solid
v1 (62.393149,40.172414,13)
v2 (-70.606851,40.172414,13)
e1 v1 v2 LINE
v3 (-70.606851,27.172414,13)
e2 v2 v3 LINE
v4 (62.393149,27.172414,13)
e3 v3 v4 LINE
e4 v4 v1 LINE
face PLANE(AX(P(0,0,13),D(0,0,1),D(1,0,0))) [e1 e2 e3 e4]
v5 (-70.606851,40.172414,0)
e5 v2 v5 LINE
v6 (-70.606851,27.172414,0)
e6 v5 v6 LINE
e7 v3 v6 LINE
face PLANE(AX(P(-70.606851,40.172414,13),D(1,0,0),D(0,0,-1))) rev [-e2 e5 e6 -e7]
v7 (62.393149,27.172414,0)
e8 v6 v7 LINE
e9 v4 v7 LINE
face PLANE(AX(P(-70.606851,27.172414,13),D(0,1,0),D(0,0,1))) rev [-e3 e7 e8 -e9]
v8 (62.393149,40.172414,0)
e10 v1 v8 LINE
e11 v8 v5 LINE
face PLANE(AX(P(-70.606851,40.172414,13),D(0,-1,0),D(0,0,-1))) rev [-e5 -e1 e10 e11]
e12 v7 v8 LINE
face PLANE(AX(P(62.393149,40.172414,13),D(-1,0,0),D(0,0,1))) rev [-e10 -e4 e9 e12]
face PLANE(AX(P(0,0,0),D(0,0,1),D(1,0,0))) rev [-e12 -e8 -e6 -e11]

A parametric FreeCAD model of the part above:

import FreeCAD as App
import Part
import Sketcher
Q = App.Units.Quantity

doc = App.newDocument("Part")
body = doc.addObject("PartDesign::Body", "Body")

sketch1 = body.newObject("Sketcher::SketchObject", "Sketch")
sketch1.AttachmentSupport = (doc.getObject("XY_Plane"), [""])
sketch1.MapMode = "FlatFace"
sketch1.addGeometry([
    Part.LineSegment(App.Vector(-70.606851, 40.172414, 0), App.Vector(-70.606851, 27.172414, 0)),
    Part.LineSegment(App.Vector(-70.606851, 27.172414, 0), App.Vector(62.393149, 27.172414, 0)),
    Part.LineSegment(App.Vector(62.393149, 27.172414, 0), App.Vector(62.393149, 40.172414, 0)),
    Part.LineSegment(App.Vector(62.393149, 40.172414, 0), App.Vector(-70.606851, 40.172414, 0)),
], False)
sketch1.addConstraint([
    Sketcher.Constraint("Coincident", 0, 2, 1, 1),
    Sketcher.Constraint("Coincident", 1, 2, 2, 1),
    Sketcher.Constraint("Coincident", 2, 2, 3, 1),
    Sketcher.Constraint("Coincident", 3, 2, 0, 1),
    Sketcher.Constraint("Vertical", 0),
    Sketcher.Constraint("Horizontal", 1),
    Sketcher.Constraint("Vertical", 2),
    Sketcher.Constraint("Horizontal", 3),
    Sketcher.Constraint("DistanceX", 1, 1, 1, 2, Q("133 mm")),
    Sketcher.Constraint("DistanceY", 0, 2, 0, 1, Q("13 mm")),
    Sketcher.Constraint("DistanceX", 0, 2, -1, 1, Q("70.606851 mm")),
    Sketcher.Constraint("DistanceY", -1, 1, 0, 2, Q("27.172414 mm")),
])
pad1 = body.newObject("PartDesign::Pad", "Pad")
pad1.Profile = sketch1
pad1.Length = 13

doc.recompute()
